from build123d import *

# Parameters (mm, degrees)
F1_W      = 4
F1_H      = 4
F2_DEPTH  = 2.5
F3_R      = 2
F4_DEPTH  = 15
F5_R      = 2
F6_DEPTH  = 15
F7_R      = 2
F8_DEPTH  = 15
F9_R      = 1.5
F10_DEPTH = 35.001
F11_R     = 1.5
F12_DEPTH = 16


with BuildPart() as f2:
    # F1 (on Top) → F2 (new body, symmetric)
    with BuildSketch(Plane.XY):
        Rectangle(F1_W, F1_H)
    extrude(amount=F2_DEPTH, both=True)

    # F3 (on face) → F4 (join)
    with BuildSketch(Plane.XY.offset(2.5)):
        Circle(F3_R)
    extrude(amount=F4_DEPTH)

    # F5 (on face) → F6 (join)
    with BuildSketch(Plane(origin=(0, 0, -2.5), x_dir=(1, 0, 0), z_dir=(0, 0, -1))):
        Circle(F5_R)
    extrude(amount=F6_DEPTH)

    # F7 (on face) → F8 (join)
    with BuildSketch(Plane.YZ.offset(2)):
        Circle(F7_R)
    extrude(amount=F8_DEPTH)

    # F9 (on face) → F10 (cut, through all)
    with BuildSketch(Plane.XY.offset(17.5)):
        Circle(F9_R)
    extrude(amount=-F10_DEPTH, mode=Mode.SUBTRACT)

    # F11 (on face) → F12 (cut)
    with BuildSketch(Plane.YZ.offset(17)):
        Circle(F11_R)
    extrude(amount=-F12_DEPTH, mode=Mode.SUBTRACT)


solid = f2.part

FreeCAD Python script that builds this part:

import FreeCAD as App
import Part
import Sketcher
Q = App.Units.Quantity

doc = App.newDocument("Part")
body = doc.addObject("PartDesign::Body", "Body")

sketch1 = doc.addObject("Sketcher::SketchObject", "Sketch")
body.addObject(sketch1)
sketch1.AttachmentSupport = (doc.XY_Plane, [""])
sketch1.MapMode = "FlatFace"
sketch1.addGeometry([
    Part.LineSegment(App.Vector(-2, 2, 0), App.Vector(-2, -2, 0)),
    Part.LineSegment(App.Vector(-2, -2, 0), App.Vector(2, -2, 0)),
    Part.LineSegment(App.Vector(2, -2, 0), App.Vector(2, 2, 0)),
    Part.LineSegment(App.Vector(2, 2, 0), App.Vector(-2, 2, 0)),
], False)
sketch1.addConstraint([
    Sketcher.Constraint("Coincident", 0, 2, 1, 1),
    Sketcher.Constraint("Coincident", 1, 2, 2, 1),
    Sketcher.Constraint("Coincident", 2, 2, 3, 1),
    Sketcher.Constraint("Coincident", 3, 2, 0, 1),
    Sketcher.Constraint("Vertical", 0),
    Sketcher.Constraint("Horizontal", 1),
    Sketcher.Constraint("Vertical", 2),
    Sketcher.Constraint("Horizontal", 3),
    Sketcher.Constraint("Symmetric", 0, 2, 2, 2, -1, 1),
    Sketcher.Constraint("Equal", 3, 0),
    Sketcher.Constraint("DistanceX", 1, 1, 1, 2, Q("4 mm")),
])
pad1 = doc.addObject("PartDesign::Pad", "Pad")
body.addObject(pad1)
pad1.Profile = sketch1
pad1.Length = 5
pad1.Midplane = True

sketch2 = doc.addObject("Sketcher::SketchObject", "Sketch001")
body.addObject(sketch2)
sketch2.AttachmentSupport = (doc.XY_Plane, [""])
sketch2.MapMode = "FlatFace"
sketch2.AttachmentOffset = App.Placement(App.Vector(0, 0, 2.5), App.Rotation())
sketch2.addGeometry(Part.Circle(App.Vector(0, 0, 0), App.Vector(0, 0, 1), 2), False)
sketch2.addConstraint([
    Sketcher.Constraint("Coincident", 0, 3, -1, 1),
    Sketcher.Constraint("Diameter", 0, Q("4 mm")),
])
pad2 = doc.addObject("PartDesign::Pad", "Pad001")
body.addObject(pad2)
pad2.Profile = sketch2
pad2.Length = 15

sketch3 = doc.addObject("Sketcher::SketchObject", "Sketch002")
body.addObject(sketch3)
sketch3.AttachmentSupport = (doc.XY_Plane, [""])
sketch3.MapMode = "FlatFace"
sketch3.AttachmentOffset = App.Placement(App.Vector(0, 0, -2.5), App.Rotation())
sketch3.addGeometry(Part.Circle(App.Vector(0, 0, 0), App.Vector(0, 0, 1), 2), False)
sketch3.addConstraint([
    Sketcher.Constraint("Coincident", 0, 3, -1, 1),
    Sketcher.Constraint("Diameter", 0, Q("4 mm")),
])
pad3 = doc.addObject("PartDesign::Pad", "Pad002")
body.addObject(pad3)
pad3.Profile = sketch3
pad3.Length = 15
pad3.Reversed = True

sketch4 = doc.addObject("Sketcher::SketchObject", "Sketch003")
body.addObject(sketch4)
sketch4.AttachmentSupport = (doc.YZ_Plane, [""])
sketch4.MapMode = "FlatFace"
sketch4.AttachmentOffset = App.Placement(App.Vector(0, 0, 2), App.Rotation())
sketch4.addGeometry(Part.Circle(App.Vector(0, 0, 0), App.Vector(0, 0, 1), 2), False)
sketch4.addConstraint([
    Sketcher.Constraint("Coincident", 0, 3, -1, 1),
    Sketcher.Constraint("Diameter", 0, Q("4 mm")),
])
pad4 = doc.addObject("PartDesign::Pad", "Pad003")
body.addObject(pad4)
pad4.Profile = sketch4
pad4.Length = 15

sketch5 = doc.addObject("Sketcher::SketchObject", "Sketch004")
body.addObject(sketch5)
sketch5.AttachmentSupport = (doc.XY_Plane, [""])
sketch5.MapMode = "FlatFace"
sketch5.AttachmentOffset = App.Placement(App.Vector(0, 0, 17.5), App.Rotation())
sketch5.addGeometry(Part.Circle(App.Vector(0, 0, 0), App.Vector(0, 0, 1), 1.5), False)
sketch5.addConstraint([
    Sketcher.Constraint("Coincident", 0, 3, -1, 1),
    Sketcher.Constraint("Diameter", 0, Q("3 mm")),
])
pocket1 = doc.addObject("PartDesign::Pocket", "Pocket")
body.addObject(pocket1)
pocket1.Profile = sketch5
pocket1.Type = "ThroughAll"

sketch6 = doc.addObject("Sketcher::SketchObject", "Sketch005")
body.addObject(sketch6)
sketch6.AttachmentSupport = (doc.YZ_Plane, [""])
sketch6.MapMode = "FlatFace"
sketch6.AttachmentOffset = App.Placement(App.Vector(0, 0, 17), App.Rotation())
sketch6.addGeometry(Part.Circle(App.Vector(0, 0, 0), App.Vector(0, 0, 1), 1.5), False)
sketch6.addConstraint([
    Sketcher.Constraint("Coincident", 0, 3, -1, 1),
    Sketcher.Constraint("Diameter", 0, Q("3 mm")),
])
pocket2 = doc.addObject("PartDesign::Pocket", "Pocket001")
body.addObject(pocket2)
pocket2.Profile = sketch6
pocket2.Length = 16

doc.recompute()
